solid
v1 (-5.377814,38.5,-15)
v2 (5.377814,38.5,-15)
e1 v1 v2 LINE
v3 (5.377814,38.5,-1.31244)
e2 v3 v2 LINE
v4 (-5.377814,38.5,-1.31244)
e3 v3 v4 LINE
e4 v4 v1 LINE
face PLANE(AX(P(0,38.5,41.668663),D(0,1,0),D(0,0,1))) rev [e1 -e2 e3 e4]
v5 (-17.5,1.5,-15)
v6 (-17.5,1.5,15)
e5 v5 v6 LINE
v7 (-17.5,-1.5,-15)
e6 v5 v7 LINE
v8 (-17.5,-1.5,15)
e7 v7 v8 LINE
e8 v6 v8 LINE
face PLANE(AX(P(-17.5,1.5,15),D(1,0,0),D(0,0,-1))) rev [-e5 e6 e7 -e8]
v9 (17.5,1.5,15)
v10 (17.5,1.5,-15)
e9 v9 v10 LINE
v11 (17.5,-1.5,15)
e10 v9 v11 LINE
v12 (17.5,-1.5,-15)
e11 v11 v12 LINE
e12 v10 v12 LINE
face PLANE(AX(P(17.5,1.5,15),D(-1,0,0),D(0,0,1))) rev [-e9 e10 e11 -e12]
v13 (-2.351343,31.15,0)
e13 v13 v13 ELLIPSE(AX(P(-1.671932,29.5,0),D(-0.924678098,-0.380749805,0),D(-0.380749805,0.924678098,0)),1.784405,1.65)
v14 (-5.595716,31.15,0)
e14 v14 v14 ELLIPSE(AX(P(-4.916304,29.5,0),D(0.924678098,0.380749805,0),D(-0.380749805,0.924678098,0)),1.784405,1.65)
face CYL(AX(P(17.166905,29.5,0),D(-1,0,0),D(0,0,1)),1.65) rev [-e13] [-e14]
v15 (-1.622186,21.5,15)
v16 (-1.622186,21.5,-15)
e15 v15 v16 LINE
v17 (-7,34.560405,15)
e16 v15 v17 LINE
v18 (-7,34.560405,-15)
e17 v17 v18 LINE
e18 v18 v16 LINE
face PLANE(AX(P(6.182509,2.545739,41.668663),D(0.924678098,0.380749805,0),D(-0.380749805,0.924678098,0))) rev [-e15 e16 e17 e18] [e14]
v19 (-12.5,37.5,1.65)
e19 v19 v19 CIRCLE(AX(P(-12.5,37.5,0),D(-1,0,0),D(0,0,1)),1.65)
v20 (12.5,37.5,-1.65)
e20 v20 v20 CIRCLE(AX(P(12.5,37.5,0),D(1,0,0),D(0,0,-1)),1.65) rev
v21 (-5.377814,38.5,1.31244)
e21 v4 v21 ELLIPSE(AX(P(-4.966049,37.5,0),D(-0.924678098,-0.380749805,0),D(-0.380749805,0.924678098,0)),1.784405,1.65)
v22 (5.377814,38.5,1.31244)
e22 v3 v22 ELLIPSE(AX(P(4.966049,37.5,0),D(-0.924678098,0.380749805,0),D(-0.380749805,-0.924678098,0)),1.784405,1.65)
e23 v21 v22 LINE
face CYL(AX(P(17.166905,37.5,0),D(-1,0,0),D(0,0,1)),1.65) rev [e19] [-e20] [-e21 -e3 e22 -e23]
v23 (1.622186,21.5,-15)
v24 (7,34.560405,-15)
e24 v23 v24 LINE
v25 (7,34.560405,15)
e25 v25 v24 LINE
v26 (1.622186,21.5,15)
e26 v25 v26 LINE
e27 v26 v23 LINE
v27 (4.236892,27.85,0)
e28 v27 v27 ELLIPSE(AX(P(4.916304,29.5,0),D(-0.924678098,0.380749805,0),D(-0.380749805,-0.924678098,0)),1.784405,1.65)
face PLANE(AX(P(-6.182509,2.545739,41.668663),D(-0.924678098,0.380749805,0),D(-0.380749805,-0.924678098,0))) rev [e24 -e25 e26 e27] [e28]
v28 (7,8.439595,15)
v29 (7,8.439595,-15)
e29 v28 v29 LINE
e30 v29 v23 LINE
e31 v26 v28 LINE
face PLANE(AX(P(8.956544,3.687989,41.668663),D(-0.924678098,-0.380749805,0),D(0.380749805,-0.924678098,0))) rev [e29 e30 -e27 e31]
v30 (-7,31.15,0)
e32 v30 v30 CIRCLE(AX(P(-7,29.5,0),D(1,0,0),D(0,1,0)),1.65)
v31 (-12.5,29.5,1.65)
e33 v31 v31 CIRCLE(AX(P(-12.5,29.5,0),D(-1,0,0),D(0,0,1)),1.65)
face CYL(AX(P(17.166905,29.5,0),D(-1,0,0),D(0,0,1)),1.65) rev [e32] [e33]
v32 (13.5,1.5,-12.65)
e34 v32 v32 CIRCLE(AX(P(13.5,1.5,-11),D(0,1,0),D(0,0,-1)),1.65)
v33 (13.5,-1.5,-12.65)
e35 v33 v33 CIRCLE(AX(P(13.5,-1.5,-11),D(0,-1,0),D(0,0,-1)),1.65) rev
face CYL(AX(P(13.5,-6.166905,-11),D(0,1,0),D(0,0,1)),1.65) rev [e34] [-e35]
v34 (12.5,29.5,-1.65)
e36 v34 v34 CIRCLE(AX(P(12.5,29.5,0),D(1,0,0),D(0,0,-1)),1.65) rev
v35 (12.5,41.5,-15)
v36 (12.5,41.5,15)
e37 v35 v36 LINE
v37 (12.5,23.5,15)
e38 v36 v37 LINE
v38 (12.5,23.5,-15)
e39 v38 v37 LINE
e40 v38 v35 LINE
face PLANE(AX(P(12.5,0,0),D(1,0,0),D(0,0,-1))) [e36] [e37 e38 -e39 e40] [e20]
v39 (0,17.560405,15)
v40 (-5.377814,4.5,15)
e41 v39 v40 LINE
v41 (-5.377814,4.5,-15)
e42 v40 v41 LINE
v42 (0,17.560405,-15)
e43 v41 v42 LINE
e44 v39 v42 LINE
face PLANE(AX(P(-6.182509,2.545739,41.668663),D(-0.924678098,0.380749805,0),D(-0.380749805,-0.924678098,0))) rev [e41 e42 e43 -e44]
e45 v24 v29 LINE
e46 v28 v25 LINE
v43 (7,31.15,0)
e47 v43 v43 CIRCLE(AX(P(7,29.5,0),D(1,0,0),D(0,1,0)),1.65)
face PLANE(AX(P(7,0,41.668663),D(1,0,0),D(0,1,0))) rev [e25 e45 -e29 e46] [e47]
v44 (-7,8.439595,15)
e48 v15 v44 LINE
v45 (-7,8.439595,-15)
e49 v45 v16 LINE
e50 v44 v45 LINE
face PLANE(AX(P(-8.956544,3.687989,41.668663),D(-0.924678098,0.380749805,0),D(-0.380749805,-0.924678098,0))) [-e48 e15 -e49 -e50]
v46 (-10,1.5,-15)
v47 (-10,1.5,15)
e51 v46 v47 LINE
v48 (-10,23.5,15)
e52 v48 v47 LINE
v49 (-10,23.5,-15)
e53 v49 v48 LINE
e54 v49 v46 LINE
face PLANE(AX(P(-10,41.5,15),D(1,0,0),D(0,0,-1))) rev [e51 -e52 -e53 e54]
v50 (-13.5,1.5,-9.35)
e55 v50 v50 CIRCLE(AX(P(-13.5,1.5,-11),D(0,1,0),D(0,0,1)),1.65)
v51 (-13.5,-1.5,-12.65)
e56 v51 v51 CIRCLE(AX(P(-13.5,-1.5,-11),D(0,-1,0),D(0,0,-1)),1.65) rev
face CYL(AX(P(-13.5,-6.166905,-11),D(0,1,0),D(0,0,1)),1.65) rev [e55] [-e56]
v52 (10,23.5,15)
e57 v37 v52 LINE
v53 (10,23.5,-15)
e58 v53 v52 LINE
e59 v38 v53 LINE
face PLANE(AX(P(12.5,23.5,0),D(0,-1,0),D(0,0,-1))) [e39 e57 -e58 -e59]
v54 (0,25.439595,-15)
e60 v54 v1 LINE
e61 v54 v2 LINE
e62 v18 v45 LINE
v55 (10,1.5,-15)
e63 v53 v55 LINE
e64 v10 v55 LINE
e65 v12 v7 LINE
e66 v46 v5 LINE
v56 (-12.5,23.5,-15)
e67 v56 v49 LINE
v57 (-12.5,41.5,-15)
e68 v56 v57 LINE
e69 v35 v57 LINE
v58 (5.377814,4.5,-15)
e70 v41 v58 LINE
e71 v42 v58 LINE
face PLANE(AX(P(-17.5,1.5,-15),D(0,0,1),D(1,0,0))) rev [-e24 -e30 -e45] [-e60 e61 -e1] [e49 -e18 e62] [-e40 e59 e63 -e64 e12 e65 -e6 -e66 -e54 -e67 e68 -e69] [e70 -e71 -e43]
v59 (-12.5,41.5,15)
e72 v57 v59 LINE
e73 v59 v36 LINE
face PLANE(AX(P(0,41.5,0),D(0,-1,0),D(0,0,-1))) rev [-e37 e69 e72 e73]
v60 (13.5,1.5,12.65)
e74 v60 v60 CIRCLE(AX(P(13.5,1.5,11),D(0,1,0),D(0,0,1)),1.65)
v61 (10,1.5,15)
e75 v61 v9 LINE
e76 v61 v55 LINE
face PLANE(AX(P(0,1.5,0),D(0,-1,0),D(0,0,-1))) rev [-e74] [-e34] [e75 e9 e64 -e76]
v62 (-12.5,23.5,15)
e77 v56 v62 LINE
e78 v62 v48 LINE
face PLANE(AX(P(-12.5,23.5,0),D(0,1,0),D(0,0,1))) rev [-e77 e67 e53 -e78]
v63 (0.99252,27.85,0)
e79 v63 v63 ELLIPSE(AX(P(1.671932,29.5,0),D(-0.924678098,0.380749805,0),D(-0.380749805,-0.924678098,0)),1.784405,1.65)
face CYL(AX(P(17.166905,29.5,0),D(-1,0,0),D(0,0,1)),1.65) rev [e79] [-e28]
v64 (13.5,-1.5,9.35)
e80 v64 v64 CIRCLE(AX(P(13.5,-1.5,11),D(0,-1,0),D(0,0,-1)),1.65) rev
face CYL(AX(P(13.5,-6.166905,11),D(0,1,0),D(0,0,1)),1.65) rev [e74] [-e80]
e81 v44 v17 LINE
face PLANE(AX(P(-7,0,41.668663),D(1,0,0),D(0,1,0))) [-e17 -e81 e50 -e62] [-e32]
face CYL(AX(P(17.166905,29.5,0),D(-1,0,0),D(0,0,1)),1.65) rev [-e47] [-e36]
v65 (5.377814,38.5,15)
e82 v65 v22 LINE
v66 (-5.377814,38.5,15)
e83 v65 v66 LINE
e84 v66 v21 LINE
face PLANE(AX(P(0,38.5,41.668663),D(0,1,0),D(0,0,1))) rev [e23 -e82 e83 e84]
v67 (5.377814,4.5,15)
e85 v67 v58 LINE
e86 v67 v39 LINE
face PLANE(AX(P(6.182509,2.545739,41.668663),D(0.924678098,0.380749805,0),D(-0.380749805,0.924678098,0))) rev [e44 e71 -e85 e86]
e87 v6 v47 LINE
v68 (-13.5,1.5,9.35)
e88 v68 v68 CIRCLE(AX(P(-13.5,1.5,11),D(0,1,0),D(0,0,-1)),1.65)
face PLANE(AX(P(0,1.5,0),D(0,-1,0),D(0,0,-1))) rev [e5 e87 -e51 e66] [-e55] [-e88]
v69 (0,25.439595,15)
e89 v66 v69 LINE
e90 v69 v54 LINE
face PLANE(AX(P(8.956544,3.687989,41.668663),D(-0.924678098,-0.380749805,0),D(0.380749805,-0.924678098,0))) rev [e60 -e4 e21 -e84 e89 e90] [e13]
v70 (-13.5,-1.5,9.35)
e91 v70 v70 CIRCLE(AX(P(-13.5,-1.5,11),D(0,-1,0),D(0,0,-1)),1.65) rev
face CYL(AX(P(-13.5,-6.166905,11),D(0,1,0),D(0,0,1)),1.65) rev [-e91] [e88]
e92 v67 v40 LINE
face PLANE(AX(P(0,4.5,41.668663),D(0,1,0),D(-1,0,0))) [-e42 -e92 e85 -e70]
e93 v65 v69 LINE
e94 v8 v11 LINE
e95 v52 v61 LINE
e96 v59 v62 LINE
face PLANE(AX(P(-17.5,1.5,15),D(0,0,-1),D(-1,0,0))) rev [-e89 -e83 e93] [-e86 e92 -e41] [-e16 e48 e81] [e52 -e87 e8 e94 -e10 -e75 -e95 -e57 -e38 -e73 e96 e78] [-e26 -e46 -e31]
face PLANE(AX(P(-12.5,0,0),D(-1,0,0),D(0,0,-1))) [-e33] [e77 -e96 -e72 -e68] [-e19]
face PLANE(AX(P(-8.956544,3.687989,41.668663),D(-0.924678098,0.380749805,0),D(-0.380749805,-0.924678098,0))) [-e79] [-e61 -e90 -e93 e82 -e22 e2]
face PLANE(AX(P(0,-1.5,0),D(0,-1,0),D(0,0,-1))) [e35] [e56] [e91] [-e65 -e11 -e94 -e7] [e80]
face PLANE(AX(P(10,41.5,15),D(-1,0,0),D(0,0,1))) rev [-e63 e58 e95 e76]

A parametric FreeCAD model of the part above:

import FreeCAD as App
import Part
import Sketcher

V = App.Vector
Q = App.Units.Quantity

doc = App.newDocument("Part")
params = doc.addObject("Spreadsheet::Sheet", "Params")
for row, (alias, value) in enumerate([
    ("sketch1_width", "35 mm"),
    ("sketch1_height", "30 mm"),
    ("pad1_length", "3 mm"),
    ("sketch2_diameter", "3.3 mm"),
    ("pocket1_length", "3 mm"),
    ("sketch3_width", "20 mm"),
    ("sketch3_height", "30 mm"),
    ("pad2_length", "40 mm"),
    ("sketch4_width", "18 mm"),
    ("sketch4_height", "30 mm"),
    ("pad3_length", "2.5 mm"),
    ("pocket2_length", "30 mm"),
    ("sketch6_diameter", "3.3 mm"),
    ("pocket3_length", "25 mm"),
], start=1):
    params.set(f"A{row}", alias)
    params.set(f"B{row}", "=" + value)
    params.setAlias(f"B{row}", alias)

body = doc.addObject("PartDesign::Body", "Body")

# Sketch on XZ plane
sketch1 = doc.addObject("Sketcher::SketchObject", "Sketch")
body.addObject(sketch1)
sketch1.AttachmentSupport = (doc.XZ_Plane, [""])
sketch1.MapMode = "FlatFace"
sketch1.addGeometry([
    Part.LineSegment(V(-18, -15, 0), V(-18, 15, 0)),
    Part.LineSegment(V(-18, 15, 0), V(18, 15, 0)),
    Part.LineSegment(V(18, 15, 0), V(18, -15, 0)),
    Part.LineSegment(V(18, -15, 0), V(-18, -15, 0)),
], False)
sketch1.addConstraint([
    Sketcher.Constraint("Coincident", 0, 2, 1, 1),
    Sketcher.Constraint("Coincident", 1, 2, 2, 1),
    Sketcher.Constraint("Coincident", 2, 2, 3, 1),
    Sketcher.Constraint("Coincident", 3, 2, 0, 1),
    Sketcher.Constraint("Vertical", 0),
    Sketcher.Constraint("Horizontal", 1),
    Sketcher.Constraint("Vertical", 2),
    Sketcher.Constraint("Horizontal", 3),
    Sketcher.Constraint("Symmetric", 0, 2, 2, 2, -1, 1),
    Sketcher.Constraint("DistanceX", 1, 1, 1, 2, Q("35 mm")),
    Sketcher.Constraint("DistanceY", 0, 1, 0, 2, Q("30 mm")),
])
sketch1.setExpression("Constraints[9]", "Params.sketch1_width")
sketch1.setExpression("Constraints[10]", "Params.sketch1_height")
pad1 = doc.addObject("PartDesign::Pad", "Pad")
body.addObject(pad1)
pad1.Profile = sketch1
pad1.setExpression("Length", "Params.pad1_length")
pad1.Midplane = True

# Sketch on XZ plane
sketch2 = doc.addObject("Sketcher::SketchObject", "Sketch001")
body.addObject(sketch2)
sketch2.AttachmentSupport = (doc.XZ_Plane, [""])
sketch2.MapMode = "FlatFace"
sketch2.AttachmentOffset = App.Placement(V(0, 0, -1.5), App.Rotation())
sketch2.addGeometry([
    Part.Circle(V(-13.5, -11, 0), V(0, 0, 1), 1.6),
    Part.Circle(V(13.5, -11, 0), V(0, 0, 1), 1.6),
    Part.Circle(V(13.5, 11, 0), V(0, 0, 1), 1.6),
    Part.Circle(V(-13.5, 11, 0), V(0, 0, 1), 1.6),
], False)
sketch2.addConstraint([
    Sketcher.Constraint("Equal", 0, 1),
    Sketcher.Constraint("Equal", 1, 2),
    Sketcher.Constraint("Equal", 2, 3),
    Sketcher.Constraint("Symmetric", 0, 3, 2, 3, -1, 1),
    Sketcher.Constraint("Symmetric", 1, 3, 3, 3, -1, 1),
    Sketcher.Constraint("Symmetric", 0, 3, 1, 3, -2),
    Sketcher.Constraint("Diameter", 0, Q("3.3 mm")),
    Sketcher.Constraint("DistanceY", 0, 3, -1, 1, Q("11 mm")),
    Sketcher.Constraint("DistanceX", 0, 3, 1, 3, Q("27 mm")),
])
sketch2.setExpression("Constraints[6]", "Params.sketch2_diameter")
pocket1 = doc.addObject("PartDesign::Pocket", "Pocket")
body.addObject(pocket1)
pocket1.Profile = sketch2
pocket1.setExpression("Length", "Params.pocket1_length")
pocket1.Reversed = True

# Sketch on XZ plane
sketch3 = doc.addObject("Sketcher::SketchObject", "Sketch002")
body.addObject(sketch3)
sketch3.AttachmentSupport = (doc.XZ_Plane, [""])
sketch3.MapMode = "FlatFace"
sketch3.AttachmentOffset = App.Placement(V(0, 0, -1.5), App.Rotation())
sketch3.addGeometry([
    Part.LineSegment(V(-10, -15, 0), V(-10, 15, 0)),
    Part.LineSegment(V(-10, 15, 0), V(10, 15, 0)),
    Part.LineSegment(V(10, 15, 0), V(10, -15, 0)),
    Part.LineSegment(V(10, -15, 0), V(-10, -15, 0)),
], False)
sketch3.addConstraint([
    Sketcher.Constraint("Coincident", 0, 2, 1, 1),
    Sketcher.Constraint("Coincident", 1, 2, 2, 1),
    Sketcher.Constraint("Coincident", 2, 2, 3, 1),
    Sketcher.Constraint("Coincident", 3, 2, 0, 1),
    Sketcher.Constraint("Vertical", 0),
    Sketcher.Constraint("Horizontal", 1),
    Sketcher.Constraint("Vertical", 2),
    Sketcher.Constraint("Horizontal", 3),
    Sketcher.Constraint("Symmetric", 0, 2, 2, 2, -1, 1),
    Sketcher.Constraint("DistanceX", 1, 1, 1, 2, Q("20 mm")),
    Sketcher.Constraint("DistanceY", 0, 1, 0, 2, Q("30 mm")),
])
sketch3.setExpression("Constraints[9]", "Params.sketch3_width")
sketch3.setExpression("Constraints[10]", "Params.sketch3_height")
pad2 = doc.addObject("PartDesign::Pad", "Pad001")
body.addObject(pad2)
pad2.Profile = sketch3
pad2.setExpression("Length", "Params.pad2_length")
pad2.Reversed = True

# Sketch on YZ plane
sketch4 = doc.addObject("Sketcher::SketchObject", "Sketch003")
body.addObject(sketch4)
sketch4.AttachmentSupport = (doc.YZ_Plane, [""])
sketch4.MapMode = "FlatFace"
sketch4.AttachmentOffset = App.Placement(V(0, 0, 10), App.Rotation())
sketch4.addGeometry([
    Part.LineSegment(V(42, 15, 0), V(24, 15, 0)),
    Part.LineSegment(V(24, 15, 0), V(24, -15, 0)),
    Part.LineSegment(V(24, -15, 0), V(42, -15, 0)),
    Part.LineSegment(V(42, -15, 0), V(42, 15, 0)),
], False)
sketch4.addConstraint([
    Sketcher.Constraint("Coincident", 0, 2, 1, 1),
    Sketcher.Constraint("Coincident", 1, 2, 2, 1),
    Sketcher.Constraint("Coincident", 2, 2, 3, 1),
    Sketcher.Constraint("Coincident", 3, 2, 0, 1),
    Sketcher.Constraint("Horizontal", 0),
    Sketcher.Constraint("Vertical", 1),
    Sketcher.Constraint("Horizontal", 2),
    Sketcher.Constraint("Vertical", 3),
    Sketcher.Constraint("DistanceX", 0, 2, 0, 1, Q("18 mm")),
    Sketcher.Constraint("DistanceY", 1, 2, 1, 1, Q("30 mm")),
    Sketcher.Constraint("DistanceY", -1, 1, 0, 2, Q("15 mm")),
    Sketcher.Constraint("DistanceX", -1, 1, 0, 2, Q("23.5 mm")),
])
sketch4.setExpression("Constraints[8]", "Params.sketch4_width")
sketch4.setExpression("Constraints[9]", "Params.sketch4_height")
pad3 = doc.addObject("PartDesign::Pad", "Pad002")
body.addObject(pad3)
pad3.Profile = sketch4
pad3.setExpression("Length", "Params.pad3_length")
doc.recompute()

mirrored = doc.addObject("PartDesign::Mirrored", "Mirrored")
body.addObject(mirrored)
mirrored.Originals = [pad3]
mirrored.MirrorPlane = (doc.YZ_Plane, [""])
body.Tip = mirrored

# Sketch on XY plane
sketch5 = doc.addObject("Sketcher::SketchObject", "Sketch004")
body.addObject(sketch5)
sketch5.AttachmentSupport = (doc.XY_Plane, [""])
sketch5.MapMode = "FlatFace"
sketch5.AttachmentOffset = App.Placement(V(0, 0, -15), App.Rotation())
sketch5.addGeometry([
    Part.LineSegment(V(0, 25, 0), V(-5, 38, 0)),  # 0
    Part.LineSegment(V(-5, 38, 0), V(5, 38, 0)),  # 1
    Part.LineSegment(V(5, 38, 0), V(0, 25, 0)),  # 2
    Part.LineSegment(V(-7, 8, 0), V(-7, 35, 0)),  # 3
    Part.LineSegment(V(-7, 35, 0), V(-2, 22, 0)),  # 4
    Part.LineSegment(V(-2, 22, 0), V(-7, 8, 0)),  # 5
    Part.LineSegment(V(7, 8, 0), V(2, 22, 0)),  # 6
    Part.LineSegment(V(2, 22, 0), V(7, 35, 0)),  # 7
    Part.LineSegment(V(7, 35, 0), V(7, 8, 0)),  # 8
    Part.LineSegment(V(-5, 4, 0), V(0, 18, 0)),  # 9
    Part.LineSegment(V(0, 18, 0), V(5, 4, 0)),  # 10
    Part.LineSegment(V(5, 4, 0), V(-5, 4, 0)),  # 11
], False)
sketch5.addConstraint([
    Sketcher.Constraint("Coincident", 0, 2, 1, 1),
    Sketcher.Constraint("Coincident", 1, 2, 2, 1),
    Sketcher.Constraint("Coincident", 2, 2, 0, 1),
    Sketcher.Constraint("Coincident", 3, 2, 4, 1),
    Sketcher.Constraint("Coincident", 4, 2, 5, 1),
    Sketcher.Constraint("Coincident", 5, 2, 3, 1),
    Sketcher.Constraint("Coincident", 6, 2, 7, 1),
    Sketcher.Constraint("Coincident", 7, 2, 8, 1),
    Sketcher.Constraint("Coincident", 8, 2, 6, 1),
    Sketcher.Constraint("Coincident", 9, 2, 10, 1),
    Sketcher.Constraint("Coincident", 10, 2, 11, 1),
    Sketcher.Constraint("Coincident", 11, 2, 9, 1),
    Sketcher.Constraint("Horizontal", 1),
    Sketcher.Constraint("Vertical", 3),
    Sketcher.Constraint("Vertical", 8),
    Sketcher.Constraint("Horizontal", 11),
    Sketcher.Constraint("Symmetric", 4, 2, 6, 2, -2),
    Sketcher.Constraint("Symmetric", 3, 2, 7, 2, -2),
    Sketcher.Constraint("PointOnObject", 2, 2, -2),
    Sketcher.Constraint("PointOnObject", 9, 2, -2),
    Sketcher.Constraint("Parallel", 0, 4),
    Sketcher.Constraint("Parallel", 2, 5),
    Sketcher.Constraint("Parallel", 4, 6),
    Sketcher.Constraint("Parallel", 5, 7),
    Sketcher.Constraint("Parallel", 7, 9),
    Sketcher.Constraint("Parallel", 6, 10),
    Sketcher.Constraint("Vertical", 1, 2, 10, 2),
    Sketcher.Constraint("Equal", 2, 4),
    Sketcher.Constraint("DistanceX", 3, 2, -1, 1, Q("7 mm")),
    Sketcher.Constraint("DistanceY", 4, 2, 0, 2, Q("17 mm")),
    Sketcher.Constraint("DistanceY", 10, 2, 6, 2, Q("17 mm")),
    Sketcher.Constraint("DistanceY", -1, 1, 0, 2, Q("38.5 mm")),
    Sketcher.Constraint("DistanceY", 3, 1, 3, 2, Q("26.12081 mm")),
    Sketcher.Constraint("DistanceX", 1, 1, 1, 2, Q("10.755628 mm")),
])
pocket2 = doc.addObject("PartDesign::Pocket", "Pocket001")
body.addObject(pocket2)
pocket2.Profile = sketch5
pocket2.setExpression("Length", "Params.pocket2_length")
pocket2.Reversed = True

# Sketch on YZ plane
sketch6 = doc.addObject("Sketcher::SketchObject", "Sketch005")
body.addObject(sketch6)
sketch6.AttachmentSupport = (doc.YZ_Plane, [""])
sketch6.MapMode = "FlatFace"
sketch6.AttachmentOffset = App.Placement(V(0, 0, -12.5), App.Rotation())
sketch6.addGeometry([
    Part.Circle(V(37.5, 0, 0), V(0, 0, 1), 1.6),
    Part.Circle(V(29.5, 0, 0), V(0, 0, 1), 1.6),
], False)
sketch6.addConstraint([
    Sketcher.Constraint("Equal", 0, 1),
    Sketcher.Constraint("PointOnObject", 0, 3, -1),
    Sketcher.Constraint("PointOnObject", 1, 3, -1),
    Sketcher.Constraint("Diameter", 0, Q("3.3 mm")),
    Sketcher.Constraint("DistanceX", 1, 3, 0, 3, Q("8 mm")),
    Sketcher.Constraint("DistanceX", -1, 1, 0, 3, Q("37.5 mm")),
])
sketch6.setExpression("Constraints[3]", "Params.sketch6_diameter")
pocket3 = doc.addObject("PartDesign::Pocket", "Pocket002")
body.addObject(pocket3)
pocket3.Profile = sketch6
pocket3.setExpression("Length", "Params.pocket3_length")
pocket3.Reversed = True

doc.recompute()
